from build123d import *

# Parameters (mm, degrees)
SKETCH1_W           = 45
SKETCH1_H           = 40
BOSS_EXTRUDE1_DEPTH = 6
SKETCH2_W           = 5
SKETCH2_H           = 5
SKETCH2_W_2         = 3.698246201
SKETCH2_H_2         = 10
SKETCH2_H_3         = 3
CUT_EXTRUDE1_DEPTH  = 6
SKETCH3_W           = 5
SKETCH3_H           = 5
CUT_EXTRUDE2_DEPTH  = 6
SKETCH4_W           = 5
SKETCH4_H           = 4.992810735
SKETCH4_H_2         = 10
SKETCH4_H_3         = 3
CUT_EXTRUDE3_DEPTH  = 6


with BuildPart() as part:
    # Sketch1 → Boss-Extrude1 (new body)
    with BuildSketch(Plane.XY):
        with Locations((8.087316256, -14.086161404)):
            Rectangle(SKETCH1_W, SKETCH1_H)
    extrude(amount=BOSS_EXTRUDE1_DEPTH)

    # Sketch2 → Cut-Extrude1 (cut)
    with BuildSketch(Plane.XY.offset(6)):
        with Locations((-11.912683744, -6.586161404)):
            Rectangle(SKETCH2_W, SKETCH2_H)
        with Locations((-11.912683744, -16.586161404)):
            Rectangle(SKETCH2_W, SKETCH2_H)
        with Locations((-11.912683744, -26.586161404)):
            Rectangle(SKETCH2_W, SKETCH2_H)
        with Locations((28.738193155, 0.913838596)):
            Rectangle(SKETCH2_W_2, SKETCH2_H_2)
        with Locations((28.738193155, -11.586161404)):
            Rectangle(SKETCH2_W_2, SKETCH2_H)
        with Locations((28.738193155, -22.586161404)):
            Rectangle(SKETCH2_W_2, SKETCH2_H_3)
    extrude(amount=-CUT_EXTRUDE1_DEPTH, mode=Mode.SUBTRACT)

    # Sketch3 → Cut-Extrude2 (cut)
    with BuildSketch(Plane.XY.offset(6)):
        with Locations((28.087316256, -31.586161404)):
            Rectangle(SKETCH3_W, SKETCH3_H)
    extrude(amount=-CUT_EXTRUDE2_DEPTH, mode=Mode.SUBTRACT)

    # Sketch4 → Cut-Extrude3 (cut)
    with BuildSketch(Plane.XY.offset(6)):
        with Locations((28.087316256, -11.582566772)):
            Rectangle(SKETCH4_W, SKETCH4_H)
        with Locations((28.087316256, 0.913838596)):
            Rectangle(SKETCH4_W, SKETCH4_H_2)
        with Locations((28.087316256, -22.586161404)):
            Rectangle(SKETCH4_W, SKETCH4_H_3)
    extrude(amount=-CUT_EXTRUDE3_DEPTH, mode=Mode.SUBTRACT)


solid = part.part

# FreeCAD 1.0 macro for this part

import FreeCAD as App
import Part
import Sketcher
from FreeCAD import Vector

doc = App.newDocument("Part")
params = doc.addObject("Spreadsheet::Sheet", "Params")
for row, (alias, value) in enumerate([
    ("sketch1_width", "45 mm"),
    ("sketch1_height", "40 mm"),
    ("pad1_length", "6 mm"),
    ("sketch2_width", "5 mm"),
    ("sketch2_height", "10 mm"),
    ("sketch2_height2", "3 mm"),
    ("pocket1_length", "6 mm"),
    ("sketch3_width", "5 mm"),
    ("pocket2_length", "6 mm"),
    ("sketch4_width", "5 mm"),
    ("sketch4_height", "10 mm"),
    ("sketch4_height2", "3 mm"),
    ("pocket3_length", "6 mm"),
], start=1):
    params.set(f"A{row}", alias)
    params.set(f"B{row}", "=" + value)
    params.setAlias(f"B{row}", alias)

body = doc.addObject("PartDesign::Body", "Body")

# Sketch on XY plane
sketch1 = body.newObject("Sketcher::SketchObject", "Sketch")
sketch1.AttachmentSupport = (doc.getObject("XY_Plane"), [""])
sketch1.MapMode = "FlatFace"
sketch1.addGeometry([
    Part.LineSegment(Vector(-14, 6, 0), Vector(-14, -34, 0)),
    Part.LineSegment(Vector(-14, -34, 0), Vector(31, -34, 0)),
    Part.LineSegment(Vector(31, -34, 0), Vector(31, 6, 0)),
    Part.LineSegment(Vector(31, 6, 0), Vector(-14, 6, 0)),
], False)
sketch1.addConstraint([
    Sketcher.Constraint("Coincident", 0, 2, 1, 1),
    Sketcher.Constraint("Coincident", 1, 2, 2, 1),
    Sketcher.Constraint("Coincident", 2, 2, 3, 1),
    Sketcher.Constraint("Coincident", 3, 2, 0, 1),
    Sketcher.Constraint("Vertical", 0),
    Sketcher.Constraint("Horizontal", 1),
    Sketcher.Constraint("Vertical", 2),
    Sketcher.Constraint("Horizontal", 3),
    Sketcher.Constraint("DistanceX", 1, 1, 1, 2, 45.0),
    Sketcher.Constraint("DistanceY", 0, 2, 0, 1, 40.0),
    Sketcher.Constraint("DistanceY", 0, 2, -1, 1, 34.086161),
    Sketcher.Constraint("DistanceX", 0, 2, -1, 1, 14.412684),
])
sketch1.setExpression("Constraints[8]", "Params.sketch1_width")
sketch1.setExpression("Constraints[9]", "Params.sketch1_height")
pad1 = body.newObject("PartDesign::Pad", "Pad")
pad1.Profile = sketch1
pad1.setExpression("Length", "Params.pad1_length")

# Sketch on XY plane
sketch2 = body.newObject("Sketcher::SketchObject", "Sketch001")
sketch2.AttachmentSupport = (doc.getObject("XY_Plane"), [""])
sketch2.MapMode = "FlatFace"
sketch2.AttachmentOffset = App.Placement(Vector(0, 0, 6), App.Rotation())
sketch2.addGeometry([
    Part.LineSegment(Vector(-14.4, -4.1, 0), Vector(-14.4, -9.1, 0)),  # 0
    Part.LineSegment(Vector(-14.4, -9.1, 0), Vector(-9.4, -9.1, 0)),  # 1
    Part.LineSegment(Vector(-9.4, -9.1, 0), Vector(-9.4, -4.1, 0)),  # 2
    Part.LineSegment(Vector(-9.4, -4.1, 0), Vector(-14.4, -4.1, 0)),  # 3
    Part.LineSegment(Vector(-14.4, -14.1, 0), Vector(-14.4, -19.1, 0)),  # 4
    Part.LineSegment(Vector(-14.4, -19.1, 0), Vector(-9.4, -19.1, 0)),  # 5
    Part.LineSegment(Vector(-9.4, -19.1, 0), Vector(-9.4, -14.1, 0)),  # 6
    Part.LineSegment(Vector(-9.4, -14.1, 0), Vector(-14.4, -14.1, 0)),  # 7
    Part.LineSegment(Vector(-14.4, -24.1, 0), Vector(-14.4, -29.1, 0)),  # 8
    Part.LineSegment(Vector(-14.4, -29.1, 0), Vector(-9.4, -29.1, 0)),  # 9
    Part.LineSegment(Vector(-9.4, -29.1, 0), Vector(-9.4, -24.1, 0)),  # 10
    Part.LineSegment(Vector(-9.4, -24.1, 0), Vector(-14.4, -24.1, 0)),  # 11
    Part.LineSegment(Vector(26.9, 5.9, 0), Vector(26.9, -4.1, 0)),  # 12
    Part.LineSegment(Vector(26.9, -4.1, 0), Vector(30.6, -4.1, 0)),  # 13
    Part.LineSegment(Vector(30.6, -4.1, 0), Vector(30.6, 5.9, 0)),  # 14
    Part.LineSegment(Vector(30.6, 5.9, 0), Vector(26.9, 5.9, 0)),  # 15
    Part.LineSegment(Vector(26.9, -9.1, 0), Vector(26.9, -14.1, 0)),  # 16
    Part.LineSegment(Vector(26.9, -14.1, 0), Vector(30.6, -14.1, 0)),  # 17
    Part.LineSegment(Vector(30.6, -14.1, 0), Vector(30.6, -9.1, 0)),  # 18
    Part.LineSegment(Vector(30.6, -9.1, 0), Vector(26.9, -9.1, 0)),  # 19
    Part.LineSegment(Vector(26.9, -21.1, 0), Vector(26.9, -24.1, 0)),  # 20
    Part.LineSegment(Vector(26.9, -24.1, 0), Vector(30.6, -24.1, 0)),  # 21
    Part.LineSegment(Vector(30.6, -24.1, 0), Vector(30.6, -21.1, 0)),  # 22
    Part.LineSegment(Vector(30.6, -21.1, 0), Vector(26.9, -21.1, 0)),  # 23
], False)
sketch2.addConstraint([
    Sketcher.Constraint("Coincident", 0, 2, 1, 1),
    Sketcher.Constraint("Coincident", 1, 2, 2, 1),
    Sketcher.Constraint("Coincident", 2, 2, 3, 1),
    Sketcher.Constraint("Coincident", 3, 2, 0, 1),
    Sketcher.Constraint("Coincident", 4, 2, 5, 1),
    Sketcher.Constraint("Coincident", 5, 2, 6, 1),
    Sketcher.Constraint("Coincident", 6, 2, 7, 1),
    Sketcher.Constraint("Coincident", 7, 2, 4, 1),
    Sketcher.Constraint("Coincident", 8, 2, 9, 1),
    Sketcher.Constraint("Coincident", 9, 2, 10, 1),
    Sketcher.Constraint("Coincident", 10, 2, 11, 1),
    Sketcher.Constraint("Coincident", 11, 2, 8, 1),
    Sketcher.Constraint("Coincident", 12, 2, 13, 1),
    Sketcher.Constraint("Coincident", 13, 2, 14, 1),
    Sketcher.Constraint("Coincident", 14, 2, 15, 1),
    Sketcher.Constraint("Coincident", 15, 2, 12, 1),
    Sketcher.Constraint("Coincident", 16, 2, 17, 1),
    Sketcher.Constraint("Coincident", 17, 2, 18, 1),
    Sketcher.Constraint("Coincident", 18, 2, 19, 1),
    Sketcher.Constraint("Coincident", 19, 2, 16, 1),
    Sketcher.Constraint("Coincident", 20, 2, 21, 1),
    Sketcher.Constraint("Coincident", 21, 2, 22, 1),
    Sketcher.Constraint("Coincident", 22, 2, 23, 1),
    Sketcher.Constraint("Coincident", 23, 2, 20, 1),
    Sketcher.Constraint("Vertical", 0),
    Sketcher.Constraint("Horizontal", 1),
    Sketcher.Constraint("Vertical", 2),
    Sketcher.Constraint("Horizontal", 3),
    Sketcher.Constraint("Vertical", 4),
    Sketcher.Constraint("Horizontal", 5),
    Sketcher.Constraint("Vertical", 6),
    Sketcher.Constraint("Horizontal", 7),
    Sketcher.Constraint("Vertical", 8),
    Sketcher.Constraint("Horizontal", 9),
    Sketcher.Constraint("Vertical", 10),
    Sketcher.Constraint("Horizontal", 11),
    Sketcher.Constraint("Vertical", 12),
    Sketcher.Constraint("Horizontal", 13),
    Sketcher.Constraint("Vertical", 14),
    Sketcher.Constraint("Horizontal", 15),
    Sketcher.Constraint("Vertical", 16),
    Sketcher.Constraint("Horizontal", 17),
    Sketcher.Constraint("Vertical", 18),
    Sketcher.Constraint("Horizontal", 19),
    Sketcher.Constraint("Vertical", 20),
    Sketcher.Constraint("Horizontal", 21),
    Sketcher.Constraint("Vertical", 22),
    Sketcher.Constraint("Horizontal", 23),
    Sketcher.Constraint("Horizontal", 3, 2, 12, 2),
    Sketcher.Constraint("Horizontal", 7, 2, 16, 2),
    Sketcher.Constraint("Horizontal", 1, 2, 18, 2),
    Sketcher.Constraint("Horizontal", 11, 2, 20, 2),
    Sketcher.Constraint("Vertical", 3, 2, 4, 2),
    Sketcher.Constraint("Vertical", 2, 2, 5, 2),
    Sketcher.Constraint("Vertical", 7, 2, 8, 2),
    Sketcher.Constraint("Vertical", 6, 2, 9, 2),
    Sketcher.Constraint("Vertical", 15, 2, 16, 2),
    Sketcher.Constraint("Vertical", 14, 2, 17, 2),
    Sketcher.Constraint("Vertical", 19, 2, 20, 2),
    Sketcher.Constraint("Vertical", 18, 2, 21, 2),
    Sketcher.Constraint("Equal", 11, 0),
    Sketcher.Constraint("Equal", 2, 4),
    Sketcher.Constraint("Equal", 6, 8),
    Sketcher.Constraint("Equal", 10, 16),
    Sketcher.Constraint("DistanceX", 1, 1, 1, 2, 5.0),
    Sketcher.Constraint("DistanceY", 12, 2, 12, 1, 10.0),
    Sketcher.Constraint("DistanceY", 20, 2, 20, 1, 3.0),
    Sketcher.Constraint("DistanceY", 8, 2, 4, 2, 10.0),
    Sketcher.Constraint("DistanceX", 2, 2, 13, 2, 40.0),
    Sketcher.Constraint("DistanceX", 13, 1, 13, 2, 3.698246),
    Sketcher.Constraint("DistanceY", 0, 2, -1, 1, 9.086161),
    Sketcher.Constraint("DistanceX", -1, 1, 12, 2, 26.88907),
])
sketch2.setExpression("Constraints[64]", "Params.sketch2_width")
sketch2.setExpression("Constraints[65]", "Params.sketch2_height")
sketch2.setExpression("Constraints[66]", "Params.sketch2_height2")
pocket1 = body.newObject("PartDesign::Pocket", "Pocket")
pocket1.Profile = sketch2
pocket1.setExpression("Length", "Params.pocket1_length")

# Sketch on XY plane
sketch3 = body.newObject("Sketcher::SketchObject", "Sketch002")
sketch3.AttachmentSupport = (doc.getObject("XY_Plane"), [""])
sketch3.MapMode = "FlatFace"
sketch3.AttachmentOffset = App.Placement(Vector(0, 0, 6), App.Rotation())
sketch3.addGeometry([
    Part.LineSegment(Vector(26, -29, 0), Vector(26, -34, 0)),
    Part.LineSegment(Vector(26, -34, 0), Vector(31, -34, 0)),
    Part.LineSegment(Vector(31, -34, 0), Vector(31, -29, 0)),
    Part.LineSegment(Vector(31, -29, 0), Vector(26, -29, 0)),
], False)
sketch3.addConstraint([
    Sketcher.Constraint("Coincident", 0, 2, 1, 1),
    Sketcher.Constraint("Coincident", 1, 2, 2, 1),
    Sketcher.Constraint("Coincident", 2, 2, 3, 1),
    Sketcher.Constraint("Coincident", 3, 2, 0, 1),
    Sketcher.Constraint("Vertical", 0),
    Sketcher.Constraint("Horizontal", 1),
    Sketcher.Constraint("Vertical", 2),
    Sketcher.Constraint("Horizontal", 3),
    Sketcher.Constraint("Equal", 3, 0),
    Sketcher.Constraint("DistanceX", 1, 1, 1, 2, 5.0),
    Sketcher.Constraint("DistanceY", 0, 2, -1, 1, 34.086161),
    Sketcher.Constraint("DistanceX", -1, 1, 0, 2, 25.587316),
])
sketch3.setExpression("Constraints[9]", "Params.sketch3_width")
pocket2 = body.newObject("PartDesign::Pocket", "Pocket001")
pocket2.Profile = sketch3
pocket2.setExpression("Length", "Params.pocket2_length")

# Sketch on XY plane
sketch4 = body.newObject("Sketcher::SketchObject", "Sketch003")
sketch4.AttachmentSupport = (doc.getObject("XY_Plane"), [""])
sketch4.MapMode = "FlatFace"
sketch4.AttachmentOffset = App.Placement(Vector(0, 0, 6), App.Rotation())
sketch4.addGeometry([
    Part.LineSegment(Vector(25.6, -9.1, 0), Vector(25.6, -14.1, 0)),  # 0
    Part.LineSegment(Vector(25.6, -14.1, 0), Vector(30.6, -14.1, 0)),  # 1
    Part.LineSegment(Vector(30.6, -14.1, 0), Vector(30.6, -9.1, 0)),  # 2
    Part.LineSegment(Vector(30.6, -9.1, 0), Vector(25.6, -9.1, 0)),  # 3
    Part.LineSegment(Vector(25.6, 5.9, 0), Vector(25.6, -4.1, 0)),  # 4
    Part.LineSegment(Vector(25.6, -4.1, 0), Vector(30.6, -4.1, 0)),  # 5
    Part.LineSegment(Vector(30.6, -4.1, 0), Vector(30.6, 5.9, 0)),  # 6
    Part.LineSegment(Vector(30.6, 5.9, 0), Vector(25.6, 5.9, 0)),  # 7
    Part.LineSegment(Vector(25.6, -21.1, 0), Vector(25.6, -24.1, 0)),  # 8
    Part.LineSegment(Vector(25.6, -24.1, 0), Vector(30.6, -24.1, 0)),  # 9
    Part.LineSegment(Vector(30.6, -24.1, 0), Vector(30.6, -21.1, 0)),  # 10
    Part.LineSegment(Vector(30.6, -21.1, 0), Vector(25.6, -21.1, 0)),  # 11
], False)
sketch4.addConstraint([
    Sketcher.Constraint("Coincident", 0, 2, 1, 1),
    Sketcher.Constraint("Coincident", 1, 2, 2, 1),
    Sketcher.Constraint("Coincident", 2, 2, 3, 1),
    Sketcher.Constraint("Coincident", 3, 2, 0, 1),
    Sketcher.Constraint("Coincident", 4, 2, 5, 1),
    Sketcher.Constraint("Coincident", 5, 2, 6, 1),
    Sketcher.Constraint("Coincident", 6, 2, 7, 1),
    Sketcher.Constraint("Coincident", 7, 2, 4, 1),
    Sketcher.Constraint("Coincident", 8, 2, 9, 1),
    Sketcher.Constraint("Coincident", 9, 2, 10, 1),
    Sketcher.Constraint("Coincident", 10, 2, 11, 1),
    Sketcher.Constraint("Coincident", 11, 2, 8, 1),
    Sketcher.Constraint("Vertical", 0),
    Sketcher.Constraint("Horizontal", 1),
    Sketcher.Constraint("Vertical", 2),
    Sketcher.Constraint("Horizontal", 3),
    Sketcher.Constraint("Vertical", 4),
    Sketcher.Constraint("Horizontal", 5),
    Sketcher.Constraint("Vertical", 6),
    Sketcher.Constraint("Horizontal", 7),
    Sketcher.Constraint("Vertical", 8),
    Sketcher.Constraint("Horizontal", 9),
    Sketcher.Constraint("Vertical", 10),
    Sketcher.Constraint("Horizontal", 11),
    Sketcher.Constraint("Vertical", 3, 2, 4, 2),
    Sketcher.Constraint("Vertical", 2, 2, 5, 2),
    Sketcher.Constraint("Vertical", 7, 2, 8, 2),
    Sketcher.Constraint("Vertical", 6, 2, 9, 2),
    Sketcher.Constraint("DistanceX", 1, 1, 1, 2, 5.0),
    Sketcher.Constraint("DistanceY", 4, 2, 4, 1, 10.0),
    Sketcher.Constraint("DistanceY", 8, 2, 8, 1, 3.0),
    Sketcher.Constraint("DistanceY", 3, 2, 4, 2, 5.0),
    Sketcher.Constraint("DistanceY", 8, 2, 3, 2, 15.0),
    Sketcher.Constraint("DistanceY", 0, 2, 0, 1, 4.992811),
    Sketcher.Constraint("DistanceY", 2, 2, -1, 1, 9.086161),
    Sketcher.Constraint("DistanceX", -1, 1, 0, 2, 25.587316),
])
sketch4.setExpression("Constraints[28]", "Params.sketch4_width")
sketch4.setExpression("Constraints[29]", "Params.sketch4_height")
sketch4.setExpression("Constraints[30]", "Params.sketch4_height2")
pocket3 = body.newObject("PartDesign::Pocket", "Pocket002")
pocket3.Profile = sketch4
pocket3.setExpression("Length", "Params.pocket3_length")

doc.recompute()
